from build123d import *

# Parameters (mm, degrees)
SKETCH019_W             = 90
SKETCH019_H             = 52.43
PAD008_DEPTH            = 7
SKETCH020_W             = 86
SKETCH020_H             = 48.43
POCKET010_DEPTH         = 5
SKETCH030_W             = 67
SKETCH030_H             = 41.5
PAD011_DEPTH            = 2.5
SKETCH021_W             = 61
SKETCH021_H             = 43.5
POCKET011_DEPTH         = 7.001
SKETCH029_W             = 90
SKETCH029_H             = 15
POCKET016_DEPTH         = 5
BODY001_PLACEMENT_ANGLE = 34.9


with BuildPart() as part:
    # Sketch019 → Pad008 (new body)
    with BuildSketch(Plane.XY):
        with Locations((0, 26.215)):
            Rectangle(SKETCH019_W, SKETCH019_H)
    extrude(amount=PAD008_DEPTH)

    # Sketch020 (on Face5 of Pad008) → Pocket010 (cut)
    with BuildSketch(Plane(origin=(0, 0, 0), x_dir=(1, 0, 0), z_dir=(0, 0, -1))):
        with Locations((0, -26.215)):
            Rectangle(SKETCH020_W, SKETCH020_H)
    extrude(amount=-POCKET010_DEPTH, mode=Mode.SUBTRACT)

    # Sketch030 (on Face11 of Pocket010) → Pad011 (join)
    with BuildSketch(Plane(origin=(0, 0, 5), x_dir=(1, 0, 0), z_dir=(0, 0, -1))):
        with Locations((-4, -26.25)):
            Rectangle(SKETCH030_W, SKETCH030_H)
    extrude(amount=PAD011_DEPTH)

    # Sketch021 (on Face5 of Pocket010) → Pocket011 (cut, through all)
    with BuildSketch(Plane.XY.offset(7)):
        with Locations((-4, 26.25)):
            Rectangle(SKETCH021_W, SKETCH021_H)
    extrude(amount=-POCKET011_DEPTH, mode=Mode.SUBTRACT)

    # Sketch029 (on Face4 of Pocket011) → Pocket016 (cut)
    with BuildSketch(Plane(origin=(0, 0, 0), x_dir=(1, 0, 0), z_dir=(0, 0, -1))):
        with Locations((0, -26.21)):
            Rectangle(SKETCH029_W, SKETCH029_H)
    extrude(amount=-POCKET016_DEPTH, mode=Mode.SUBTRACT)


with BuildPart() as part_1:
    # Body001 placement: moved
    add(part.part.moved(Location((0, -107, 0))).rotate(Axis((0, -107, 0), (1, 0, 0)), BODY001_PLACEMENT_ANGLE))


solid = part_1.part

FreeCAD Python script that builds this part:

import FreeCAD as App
import Part
import Sketcher


def add_polygon(sketch, points):
    """Adds a closed chain of lines whose ends are joined by coincident constraints."""
    first, n = sketch.GeometryCount, len(points)
    for a, b in zip(points, points[1:] + points[:1]):
        sketch.addGeometry(Part.LineSegment(App.Vector(*a, 0), App.Vector(*b, 0)), False)
    for i in range(n):
        sketch.addConstraint(Sketcher.Constraint("Coincident", first + i, 2, first + (i + 1) % n, 1))

doc = App.newDocument("Part")
params = doc.addObject("Spreadsheet::Sheet", "Params")
for row, (alias, value) in enumerate([
    ("sketch1_width", "90 mm"),
    ("sketch1_height", "52.43 mm"),
    ("pad1_length", "7 mm"),
    ("sketch2_width", "86 mm"),
    ("sketch2_height", "48.43 mm"),
    ("pocket1_length", "5 mm"),
    ("sketch3_width", "67 mm"),
    ("sketch3_height", "41.5 mm"),
    ("pad2_length", "2.5 mm"),
    ("sketch4_width", "61 mm"),
    ("sketch4_height", "43.5 mm"),
    ("sketch5_width", "90 mm"),
    ("sketch5_height", "15 mm"),
    ("pocket3_length", "5 mm"),
], start=1):
    params.set(f"A{row}", alias)
    params.set(f"B{row}", "=" + value)
    params.setAlias(f"B{row}", alias)

body = doc.addObject("PartDesign::Body", "Body")

sketch1 = body.newObject("Sketcher::SketchObject", "Sketch")
sketch1.AttachmentSupport = (doc.getObject("XY_Plane"), [""])
sketch1.MapMode = "FlatFace"
add_polygon(sketch1, [(-45, 52), (-45, 0), (45, 0), (45, 52)])
sketch1.addConstraint([
    Sketcher.Constraint("Vertical", 0),
    Sketcher.Constraint("Horizontal", 1),
    Sketcher.Constraint("Vertical", 2),
    Sketcher.Constraint("Horizontal", 3),
    Sketcher.Constraint("Symmetric", 0, 2, 1, 2, -1, 1),
    Sketcher.Constraint("DistanceX", 1, 1, 1, 2, 90.0),
    Sketcher.Constraint("DistanceY", 0, 2, 0, 1, 52.43),
])
sketch1.setExpression("Constraints[9]", "Params.sketch1_width")
sketch1.setExpression("Constraints[10]", "Params.sketch1_height")
pad1 = body.newObject("PartDesign::Pad", "Pad")
pad1.Profile = sketch1
pad1.setExpression("Length", "Params.pad1_length")

sketch2 = body.newObject("Sketcher::SketchObject", "Sketch001")
sketch2.AttachmentSupport = (doc.getObject("XY_Plane"), [""])
sketch2.MapMode = "FlatFace"
add_polygon(sketch2, [(-43, 2), (-43, 50), (43, 50), (43, 2)])
sketch2.addConstraint([
    Sketcher.Constraint("Vertical", 0),
    Sketcher.Constraint("Horizontal", 1),
    Sketcher.Constraint("Vertical", 2),
    Sketcher.Constraint("Horizontal", 3),
    Sketcher.Constraint("DistanceX", 1, 1, 1, 2, 86.0),
    Sketcher.Constraint("DistanceX", 0, 2, -1, 1, 43.0),
    Sketcher.Constraint("DistanceY", -1, 1, 2, 2, 2.0),
    Sketcher.Constraint("DistanceY", 0, 1, 0, 2, 48.43),
])
sketch2.setExpression("Constraints[8]", "Params.sketch2_width")
sketch2.setExpression("Constraints[11]", "Params.sketch2_height")
pocket1 = body.newObject("PartDesign::Pocket", "Pocket")
pocket1.Profile = sketch2
pocket1.setExpression("Length", "Params.pocket1_length")
pocket1.Reversed = True

sketch3 = body.newObject("Sketcher::SketchObject", "Sketch002")
sketch3.AttachmentSupport = (doc.getObject("XY_Plane"), [""])
sketch3.MapMode = "FlatFace"
sketch3.AttachmentOffset = App.Placement(App.Vector(0, 0, 5), App.Rotation())
add_polygon(sketch3, [(-38, 6), (-38, 47), (30, 47), (30, 6)])
sketch3.addConstraint([
    Sketcher.Constraint("Vertical", 0),
    Sketcher.Constraint("Horizontal", 1),
    Sketcher.Constraint("Vertical", 2),
    Sketcher.Constraint("Horizontal", 3),
    Sketcher.Constraint("DistanceX", 1, 1, 1, 2, 67.0),
    Sketcher.Constraint("DistanceY", 0, 1, 0, 2, 41.5),
    Sketcher.Constraint("DistanceY", -1, 1, 0, 2, 47.0),
    Sketcher.Constraint("DistanceX", 0, 2, -1, 1, 37.5),
])
sketch3.setExpression("Constraints[8]", "Params.sketch3_width")
sketch3.setExpression("Constraints[9]", "Params.sketch3_height")
pad2 = body.newObject("PartDesign::Pad", "Pad001")
pad2.Profile = sketch3
pad2.setExpression("Length", "Params.pad2_length")
pad2.Reversed = True

sketch4 = body.newObject("Sketcher::SketchObject", "Sketch003")
sketch4.AttachmentSupport = (doc.getObject("XY_Plane"), [""])
sketch4.MapMode = "FlatFace"
sketch4.AttachmentOffset = App.Placement(App.Vector(0, 0, 7), App.Rotation())
add_polygon(sketch4, [(-34, 48), (-34, 4), (26, 4), (26, 48)])
sketch4.addConstraint([
    Sketcher.Constraint("Vertical", 0),
    Sketcher.Constraint("Horizontal", 1),
    Sketcher.Constraint("Vertical", 2),
    Sketcher.Constraint("Horizontal", 3),
    Sketcher.Constraint("DistanceX", 1, 1, 1, 2, 61.0),
    Sketcher.Constraint("DistanceY", 0, 2, 0, 1, 43.5),
    Sketcher.Constraint("DistanceY", -1, 1, 2, 2, 48.0),
    Sketcher.Constraint("DistanceX", 0, 2, -1, 1, 34.5),
])
sketch4.setExpression("Constraints[8]", "Params.sketch4_width")
sketch4.setExpression("Constraints[9]", "Params.sketch4_height")
pocket2 = body.newObject("PartDesign::Pocket", "Pocket001")
pocket2.Profile = sketch4
pocket2.Type = "ThroughAll"

sketch5 = body.newObject("Sketcher::SketchObject", "Sketch004")
sketch5.AttachmentSupport = (doc.getObject("XY_Plane"), [""])
sketch5.MapMode = "FlatFace"
add_polygon(sketch5, [(-45, 19), (-45, 34), (45, 34), (45, 19)])
sketch5.addConstraint([
    Sketcher.Constraint("Vertical", 0),
    Sketcher.Constraint("Horizontal", 1),
    Sketcher.Constraint("Vertical", 2),
    Sketcher.Constraint("Horizontal", 3),
    Sketcher.Constraint("DistanceX", 1, 1, 1, 2, 90.0),
    Sketcher.Constraint("DistanceY", 0, 1, 0, 2, 15.0),
    Sketcher.Constraint("DistanceX", 0, 2, -1, 1, 45.0),
    Sketcher.Constraint("DistanceY", -1, 1, 0, 2, 33.71),
])
sketch5.setExpression("Constraints[8]", "Params.sketch5_width")
sketch5.setExpression("Constraints[9]", "Params.sketch5_height")
pocket3 = body.newObject("PartDesign::Pocket", "Pocket002")
pocket3.Profile = sketch5
pocket3.setExpression("Length", "Params.pocket3_length")
pocket3.Reversed = True
body2 = doc.addObject("PartDesign::Body", "Body001")
doc.recompute()

body.Placement = App.Placement(App.Vector(0, -107, 0), App.Rotation(App.Vector(1, 0, 0), 34.9))
boolean = body2.newObject("PartDesign::Boolean", "Boolean")
boolean.Type = "Fuse"
boolean.addObjects([body])

doc.recompute()
